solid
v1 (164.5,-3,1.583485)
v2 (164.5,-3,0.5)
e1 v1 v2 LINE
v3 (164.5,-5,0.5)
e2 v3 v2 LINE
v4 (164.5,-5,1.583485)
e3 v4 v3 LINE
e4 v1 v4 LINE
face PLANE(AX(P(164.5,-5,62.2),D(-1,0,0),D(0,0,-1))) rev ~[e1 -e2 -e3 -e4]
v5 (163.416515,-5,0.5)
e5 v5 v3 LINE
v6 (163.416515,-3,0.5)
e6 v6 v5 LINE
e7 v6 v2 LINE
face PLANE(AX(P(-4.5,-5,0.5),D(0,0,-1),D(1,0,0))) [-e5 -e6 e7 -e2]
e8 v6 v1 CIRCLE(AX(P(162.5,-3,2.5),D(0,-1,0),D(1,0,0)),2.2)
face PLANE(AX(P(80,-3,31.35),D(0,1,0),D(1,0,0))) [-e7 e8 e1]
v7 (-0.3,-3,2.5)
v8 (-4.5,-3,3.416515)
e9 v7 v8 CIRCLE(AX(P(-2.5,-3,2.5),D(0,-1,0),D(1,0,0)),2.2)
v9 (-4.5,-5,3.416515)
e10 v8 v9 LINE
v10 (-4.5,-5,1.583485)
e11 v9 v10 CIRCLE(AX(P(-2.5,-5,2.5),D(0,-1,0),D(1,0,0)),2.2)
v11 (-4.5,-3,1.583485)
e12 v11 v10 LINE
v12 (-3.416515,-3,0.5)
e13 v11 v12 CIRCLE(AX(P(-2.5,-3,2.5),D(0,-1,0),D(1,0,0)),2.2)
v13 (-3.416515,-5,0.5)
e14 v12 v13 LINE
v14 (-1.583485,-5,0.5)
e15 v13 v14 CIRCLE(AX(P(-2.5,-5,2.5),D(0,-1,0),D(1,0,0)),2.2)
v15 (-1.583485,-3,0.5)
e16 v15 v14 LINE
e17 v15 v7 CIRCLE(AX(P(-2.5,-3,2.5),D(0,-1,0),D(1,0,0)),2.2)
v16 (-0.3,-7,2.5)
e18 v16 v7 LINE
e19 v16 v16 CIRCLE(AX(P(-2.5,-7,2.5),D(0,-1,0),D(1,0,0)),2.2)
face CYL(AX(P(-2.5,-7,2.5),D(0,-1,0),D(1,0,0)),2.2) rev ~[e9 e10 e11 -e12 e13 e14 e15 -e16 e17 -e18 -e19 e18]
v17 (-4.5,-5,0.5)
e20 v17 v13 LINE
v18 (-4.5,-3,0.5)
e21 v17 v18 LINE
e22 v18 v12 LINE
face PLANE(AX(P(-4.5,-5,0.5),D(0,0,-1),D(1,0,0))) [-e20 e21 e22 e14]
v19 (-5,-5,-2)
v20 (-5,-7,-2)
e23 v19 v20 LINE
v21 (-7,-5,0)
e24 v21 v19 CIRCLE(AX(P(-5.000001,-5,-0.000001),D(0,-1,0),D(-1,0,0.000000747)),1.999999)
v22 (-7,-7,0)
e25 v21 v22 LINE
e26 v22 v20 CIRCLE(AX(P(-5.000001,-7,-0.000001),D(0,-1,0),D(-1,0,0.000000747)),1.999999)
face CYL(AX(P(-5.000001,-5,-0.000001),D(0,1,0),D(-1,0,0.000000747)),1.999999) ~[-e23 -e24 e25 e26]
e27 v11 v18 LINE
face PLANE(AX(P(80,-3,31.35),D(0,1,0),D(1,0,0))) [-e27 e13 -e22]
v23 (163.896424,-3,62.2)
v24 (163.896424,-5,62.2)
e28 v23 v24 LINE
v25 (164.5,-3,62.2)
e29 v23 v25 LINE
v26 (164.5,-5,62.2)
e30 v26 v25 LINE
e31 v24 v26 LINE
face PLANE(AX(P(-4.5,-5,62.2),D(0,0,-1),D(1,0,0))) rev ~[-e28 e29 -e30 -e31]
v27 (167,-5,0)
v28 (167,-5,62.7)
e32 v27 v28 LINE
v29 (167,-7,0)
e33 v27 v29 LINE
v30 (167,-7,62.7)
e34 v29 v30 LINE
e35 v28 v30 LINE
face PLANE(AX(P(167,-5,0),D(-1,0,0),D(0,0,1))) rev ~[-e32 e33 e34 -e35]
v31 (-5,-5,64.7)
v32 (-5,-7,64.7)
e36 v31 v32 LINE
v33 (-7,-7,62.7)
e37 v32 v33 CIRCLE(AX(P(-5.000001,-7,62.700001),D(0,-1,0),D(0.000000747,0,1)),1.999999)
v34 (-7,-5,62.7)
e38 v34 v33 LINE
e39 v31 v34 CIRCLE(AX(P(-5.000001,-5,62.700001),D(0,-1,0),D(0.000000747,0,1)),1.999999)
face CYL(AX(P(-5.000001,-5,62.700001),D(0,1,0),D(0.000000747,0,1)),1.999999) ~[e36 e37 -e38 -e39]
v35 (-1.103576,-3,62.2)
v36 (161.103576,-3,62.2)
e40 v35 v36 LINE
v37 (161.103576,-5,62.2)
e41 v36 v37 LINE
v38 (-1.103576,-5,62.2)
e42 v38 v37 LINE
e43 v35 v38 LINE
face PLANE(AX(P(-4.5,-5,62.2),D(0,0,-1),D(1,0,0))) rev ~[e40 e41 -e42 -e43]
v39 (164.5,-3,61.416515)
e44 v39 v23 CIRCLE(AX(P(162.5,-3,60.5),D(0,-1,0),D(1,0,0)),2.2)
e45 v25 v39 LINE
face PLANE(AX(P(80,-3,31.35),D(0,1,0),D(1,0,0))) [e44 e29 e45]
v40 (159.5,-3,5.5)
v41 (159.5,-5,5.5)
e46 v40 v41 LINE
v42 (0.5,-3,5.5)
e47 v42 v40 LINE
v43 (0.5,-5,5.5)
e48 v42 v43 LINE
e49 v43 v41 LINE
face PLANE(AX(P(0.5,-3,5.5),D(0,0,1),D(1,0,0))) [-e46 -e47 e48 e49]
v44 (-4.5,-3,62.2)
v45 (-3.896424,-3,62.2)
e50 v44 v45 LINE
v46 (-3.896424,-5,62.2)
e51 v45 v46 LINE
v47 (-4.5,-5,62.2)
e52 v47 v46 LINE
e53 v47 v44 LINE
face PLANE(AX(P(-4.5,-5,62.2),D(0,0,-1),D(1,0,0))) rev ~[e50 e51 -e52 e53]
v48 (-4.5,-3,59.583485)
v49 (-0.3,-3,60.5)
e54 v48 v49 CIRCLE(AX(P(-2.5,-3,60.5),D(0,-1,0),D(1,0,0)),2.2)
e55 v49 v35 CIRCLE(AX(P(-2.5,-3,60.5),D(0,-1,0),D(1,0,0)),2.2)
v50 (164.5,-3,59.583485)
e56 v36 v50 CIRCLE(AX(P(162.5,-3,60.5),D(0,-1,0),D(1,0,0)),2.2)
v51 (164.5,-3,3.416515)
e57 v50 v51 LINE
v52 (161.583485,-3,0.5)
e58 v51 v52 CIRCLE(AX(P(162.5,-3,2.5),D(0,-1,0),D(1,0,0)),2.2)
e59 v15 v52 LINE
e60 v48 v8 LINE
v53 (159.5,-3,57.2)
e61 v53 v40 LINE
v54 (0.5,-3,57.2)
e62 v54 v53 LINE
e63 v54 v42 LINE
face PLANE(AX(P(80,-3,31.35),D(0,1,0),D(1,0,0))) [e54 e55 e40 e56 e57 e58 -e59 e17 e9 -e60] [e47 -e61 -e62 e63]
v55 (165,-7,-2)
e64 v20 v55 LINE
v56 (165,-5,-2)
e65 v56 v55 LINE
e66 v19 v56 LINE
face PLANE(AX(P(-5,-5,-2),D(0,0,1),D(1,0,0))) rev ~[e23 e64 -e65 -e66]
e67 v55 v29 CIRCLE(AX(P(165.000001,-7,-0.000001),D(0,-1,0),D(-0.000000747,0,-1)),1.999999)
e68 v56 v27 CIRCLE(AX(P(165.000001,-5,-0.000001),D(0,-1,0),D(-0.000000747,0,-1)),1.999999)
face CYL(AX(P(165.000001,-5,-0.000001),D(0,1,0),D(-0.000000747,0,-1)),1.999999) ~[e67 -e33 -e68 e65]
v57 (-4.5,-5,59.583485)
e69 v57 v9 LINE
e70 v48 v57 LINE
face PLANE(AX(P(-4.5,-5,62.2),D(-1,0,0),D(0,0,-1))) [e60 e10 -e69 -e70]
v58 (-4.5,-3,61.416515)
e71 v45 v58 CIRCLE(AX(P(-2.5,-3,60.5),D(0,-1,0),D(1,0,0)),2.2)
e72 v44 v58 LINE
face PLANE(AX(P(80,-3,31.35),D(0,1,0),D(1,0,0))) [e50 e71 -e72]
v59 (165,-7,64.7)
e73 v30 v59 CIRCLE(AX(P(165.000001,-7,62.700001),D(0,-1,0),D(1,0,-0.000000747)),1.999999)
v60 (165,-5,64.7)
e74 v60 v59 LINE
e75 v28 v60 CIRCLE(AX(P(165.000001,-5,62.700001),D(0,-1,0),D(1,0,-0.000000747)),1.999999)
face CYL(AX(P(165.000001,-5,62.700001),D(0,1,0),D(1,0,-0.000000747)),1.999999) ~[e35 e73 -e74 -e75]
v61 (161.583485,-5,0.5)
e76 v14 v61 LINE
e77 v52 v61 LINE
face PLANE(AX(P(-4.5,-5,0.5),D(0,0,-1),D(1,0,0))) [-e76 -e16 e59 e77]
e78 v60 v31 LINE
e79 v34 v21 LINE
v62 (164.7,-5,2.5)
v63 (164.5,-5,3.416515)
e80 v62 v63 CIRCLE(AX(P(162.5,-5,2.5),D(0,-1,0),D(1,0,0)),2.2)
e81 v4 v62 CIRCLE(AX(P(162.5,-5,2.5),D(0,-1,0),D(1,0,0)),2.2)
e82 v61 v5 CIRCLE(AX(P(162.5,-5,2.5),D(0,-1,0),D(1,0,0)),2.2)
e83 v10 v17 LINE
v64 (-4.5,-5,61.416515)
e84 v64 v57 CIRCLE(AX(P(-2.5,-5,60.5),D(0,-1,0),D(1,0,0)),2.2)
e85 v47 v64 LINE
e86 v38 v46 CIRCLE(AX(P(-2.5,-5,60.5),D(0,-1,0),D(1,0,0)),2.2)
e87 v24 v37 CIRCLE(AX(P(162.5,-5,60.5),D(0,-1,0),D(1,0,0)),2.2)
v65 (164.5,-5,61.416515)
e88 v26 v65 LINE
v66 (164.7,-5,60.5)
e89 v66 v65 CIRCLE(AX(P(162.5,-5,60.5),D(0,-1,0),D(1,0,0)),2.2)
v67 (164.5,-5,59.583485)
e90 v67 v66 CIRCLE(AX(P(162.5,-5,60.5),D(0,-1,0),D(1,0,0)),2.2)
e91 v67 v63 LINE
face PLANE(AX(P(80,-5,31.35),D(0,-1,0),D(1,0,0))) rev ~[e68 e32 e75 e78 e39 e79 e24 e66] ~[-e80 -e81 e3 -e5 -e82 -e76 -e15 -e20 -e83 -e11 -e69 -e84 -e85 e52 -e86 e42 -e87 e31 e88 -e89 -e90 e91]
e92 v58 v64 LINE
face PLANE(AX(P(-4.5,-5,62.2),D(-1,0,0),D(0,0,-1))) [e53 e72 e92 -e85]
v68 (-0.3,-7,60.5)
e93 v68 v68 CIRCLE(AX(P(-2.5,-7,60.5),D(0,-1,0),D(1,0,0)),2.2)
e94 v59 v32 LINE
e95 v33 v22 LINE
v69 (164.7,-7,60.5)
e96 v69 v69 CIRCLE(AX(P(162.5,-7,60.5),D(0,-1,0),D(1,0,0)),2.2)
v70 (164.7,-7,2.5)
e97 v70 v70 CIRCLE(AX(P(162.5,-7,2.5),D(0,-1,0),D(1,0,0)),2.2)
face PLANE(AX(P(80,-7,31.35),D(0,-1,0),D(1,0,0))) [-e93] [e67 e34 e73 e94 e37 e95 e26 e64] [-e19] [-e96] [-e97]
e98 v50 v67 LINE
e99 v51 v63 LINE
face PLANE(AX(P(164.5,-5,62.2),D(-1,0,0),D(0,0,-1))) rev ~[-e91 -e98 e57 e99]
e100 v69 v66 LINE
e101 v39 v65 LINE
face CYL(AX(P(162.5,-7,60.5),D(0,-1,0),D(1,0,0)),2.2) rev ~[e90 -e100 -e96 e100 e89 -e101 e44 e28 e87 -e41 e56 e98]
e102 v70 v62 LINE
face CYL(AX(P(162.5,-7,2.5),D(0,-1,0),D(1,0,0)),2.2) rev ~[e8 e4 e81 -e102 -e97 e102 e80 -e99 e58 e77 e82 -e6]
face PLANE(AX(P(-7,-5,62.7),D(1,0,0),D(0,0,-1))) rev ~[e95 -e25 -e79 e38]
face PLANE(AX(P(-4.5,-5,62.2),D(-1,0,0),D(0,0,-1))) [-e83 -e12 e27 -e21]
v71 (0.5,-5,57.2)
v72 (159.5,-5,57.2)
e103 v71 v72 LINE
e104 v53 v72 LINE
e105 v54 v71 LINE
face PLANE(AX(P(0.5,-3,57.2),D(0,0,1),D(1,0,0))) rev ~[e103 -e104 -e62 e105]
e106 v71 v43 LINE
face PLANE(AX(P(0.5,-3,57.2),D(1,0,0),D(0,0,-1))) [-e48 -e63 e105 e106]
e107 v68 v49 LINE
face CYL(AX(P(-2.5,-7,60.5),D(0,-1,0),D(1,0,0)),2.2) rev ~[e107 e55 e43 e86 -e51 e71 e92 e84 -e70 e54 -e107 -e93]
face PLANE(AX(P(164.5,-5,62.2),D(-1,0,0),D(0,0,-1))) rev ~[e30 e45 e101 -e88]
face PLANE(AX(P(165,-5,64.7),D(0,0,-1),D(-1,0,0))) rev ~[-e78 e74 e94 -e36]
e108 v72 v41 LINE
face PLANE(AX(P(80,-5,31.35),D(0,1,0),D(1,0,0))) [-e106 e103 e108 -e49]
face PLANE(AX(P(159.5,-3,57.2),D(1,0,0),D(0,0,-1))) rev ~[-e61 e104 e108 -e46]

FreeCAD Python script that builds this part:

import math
import FreeCAD as App
import Part
import Sketcher
from FreeCAD import Vector

doc = App.newDocument("Part")
body = doc.addObject("PartDesign::Body", "Body")

# Sketch on XZ plane
sketch1 = body.newObject("Sketcher::SketchObject", "Sketch")
sketch1.AttachmentSupport = (doc.getObject("XZ_Plane"), [""])
sketch1.MapMode = "FlatFace"
sketch1.addGeometry([
    Part.LineSegment(Vector(-2, 62.7, 0), Vector(-2, 0, 0)),  # 0
    Part.ArcOfCircle(Part.Circle(Vector(0, 0, 0), Vector(0, 0, 1), 2), math.radians(180), math.radians(270)),  # 1
    Part.LineSegment(Vector(0, -2, 0), Vector(170, -2, 0)),  # 2
    Part.ArcOfCircle(Part.Circle(Vector(170, 0, 0), Vector(0, 0, 1), 2), math.radians(-90), math.radians(0)),  # 3
    Part.LineSegment(Vector(172, 0, 0), Vector(172, 62.7, 0)),  # 4
    Part.ArcOfCircle(Part.Circle(Vector(170, 62.7, 0), Vector(0, 0, 1), 2), math.radians(0), math.radians(90)),  # 5
    Part.LineSegment(Vector(170, 64.7, 0), Vector(0, 64.7, 0)),  # 6
    Part.ArcOfCircle(Part.Circle(Vector(0, 62.7, 0), Vector(0, 0, 1), 2), math.radians(90), math.radians(180)),  # 7
], False)
sketch1.addConstraint([
    Sketcher.Constraint("Tangent", 0, 2, 1, 1),
    Sketcher.Constraint("Tangent", 1, 2, 2, 1),
    Sketcher.Constraint("Tangent", 2, 2, 3, 1),
    Sketcher.Constraint("Tangent", 3, 2, 4, 1),
    Sketcher.Constraint("Tangent", 4, 2, 5, 1),
    Sketcher.Constraint("Tangent", 5, 2, 6, 1),
    Sketcher.Constraint("Tangent", 6, 2, 7, 1),
    Sketcher.Constraint("Tangent", 7, 2, 0, 1),
    Sketcher.Constraint("Vertical", 0),
    Sketcher.Constraint("Horizontal", 2),
    Sketcher.Constraint("Vertical", 4),
    Sketcher.Constraint("Horizontal", 6),
    Sketcher.Constraint("Coincident", 1, 3, -1, 1),
    Sketcher.Constraint("Equal", 1, 3),
    Sketcher.Constraint("Equal", 3, 5),
    Sketcher.Constraint("Equal", 5, 7),
    Sketcher.Constraint("Radius", 1, 1.999999),
    Sketcher.Constraint("DistanceX", 2, 1, 2, 2, 170.0),
    Sketcher.Constraint("DistanceY", 0, 2, 0, 1, 62.7),
])
pad1 = body.newObject("PartDesign::Pad", "Pad")
pad1.Profile = sketch1
pad1.Length = 2

# Sketch on XZ plane
sketch2 = body.newObject("Sketcher::SketchObject", "Sketch001")
sketch2.AttachmentSupport = (doc.getObject("XZ_Plane"), [""])
sketch2.MapMode = "FlatFace"
sketch2.addGeometry([
    Part.LineSegment(Vector(0, 0, 0), Vector(0, 62, 0)),
    Part.LineSegment(Vector(0, 62, 0), Vector(170, 62, 0)),
    Part.LineSegment(Vector(170, 62, 0), Vector(170, 0, 0)),
    Part.LineSegment(Vector(170, 0, 0), Vector(0, 0, 0)),
], False)
sketch2.addConstraint([
    Sketcher.Constraint("Coincident", 0, 2, 1, 1),
    Sketcher.Constraint("Coincident", 1, 2, 2, 1),
    Sketcher.Constraint("Coincident", 2, 2, 3, 1),
    Sketcher.Constraint("Coincident", 3, 2, 0, 1),
    Sketcher.Constraint("Vertical", 0),
    Sketcher.Constraint("Horizontal", 1),
    Sketcher.Constraint("Vertical", 2),
    Sketcher.Constraint("Horizontal", 3),
    Sketcher.Constraint("DistanceX", 1, 1, 1, 2, 169.0),
    Sketcher.Constraint("DistanceY", 0, 1, 0, 2, 61.7),
    Sketcher.Constraint("DistanceX", -1, 1, 0, 2, 0.5),
    Sketcher.Constraint("DistanceY", -1, 1, 0, 2, 62.2),
])
pad2 = body.newObject("PartDesign::Pad", "Pad001")
pad2.Profile = sketch2
pad2.Length = 2
pad2.Reversed = True

# Sketch on XZ plane
sketch3 = body.newObject("Sketcher::SketchObject", "Sketch002")
sketch3.AttachmentSupport = (doc.getObject("XZ_Plane"), [""])
sketch3.MapMode = "FlatFace"
sketch3.AttachmentOffset = App.Placement(Vector(0, 0, 2), App.Rotation())
sketch3.addGeometry([
    Part.Circle(Vector(2.5, 2.5, 0), Vector(0, 0, 1), 2.2),
    Part.Circle(Vector(2.5, 60.5, 0), Vector(0, 0, 1), 2.2),
    Part.Circle(Vector(167.5, 60.5, 0), Vector(0, 0, 1), 2.2),
    Part.Circle(Vector(167.5, 2.5, 0), Vector(0, 0, 1), 2.2),
], False)
sketch3.addConstraint([
    Sketcher.Constraint("Equal", 0, 1),
    Sketcher.Constraint("Equal", 1, 2),
    Sketcher.Constraint("Equal", 2, 3),
    Sketcher.Constraint("Horizontal", 1, 3, 2, 3),
    Sketcher.Constraint("Horizontal", 0, 3, 3, 3),
    Sketcher.Constraint("Vertical", 0, 3, 1, 3),
    Sketcher.Constraint("Vertical", 2, 3, 3, 3),
    Sketcher.Constraint("Diameter", 0, 4.4),
    Sketcher.Constraint("DistanceY", 0, 3, 1, 3, 58.0),
    Sketcher.Constraint("DistanceX", 1, 3, 2, 3, 165.0),
    Sketcher.Constraint("DistanceX", -1, 1, 0, 3, 2.5),
    Sketcher.Constraint("DistanceY", -1, 1, 0, 3, 2.5),
])
pocket1 = body.newObject("PartDesign::Pocket", "Pocket")
pocket1.Profile = sketch3
pocket1.Type = "ThroughAll"

# Sketch on XZ plane
sketch4 = body.newObject("Sketcher::SketchObject", "Sketch003")
sketch4.AttachmentSupport = (doc.getObject("XZ_Plane"), [""])
sketch4.MapMode = "FlatFace"
sketch4.AttachmentOffset = App.Placement(Vector(0, 0, -2), App.Rotation())
sketch4.addGeometry([
    Part.LineSegment(Vector(6, 6, 0), Vector(6, 57, 0)),
    Part.LineSegment(Vector(6, 57, 0), Vector(164, 57, 0)),
    Part.LineSegment(Vector(164, 57, 0), Vector(164, 6, 0)),
    Part.LineSegment(Vector(164, 6, 0), Vector(6, 6, 0)),
], False)
sketch4.addConstraint([
    Sketcher.Constraint("Coincident", 0, 2, 1, 1),
    Sketcher.Constraint("Coincident", 1, 2, 2, 1),
    Sketcher.Constraint("Coincident", 2, 2, 3, 1),
    Sketcher.Constraint("Coincident", 3, 2, 0, 1),
    Sketcher.Constraint("Vertical", 0),
    Sketcher.Constraint("Horizontal", 1),
    Sketcher.Constraint("Vertical", 2),
    Sketcher.Constraint("Horizontal", 3),
    Sketcher.Constraint("DistanceX", 1, 1, 1, 2, 159.0),
    Sketcher.Constraint("DistanceY", 0, 1, 0, 2, 51.7),
    Sketcher.Constraint("DistanceX", -1, 1, 0, 2, 5.5),
    Sketcher.Constraint("DistanceY", -1, 1, 0, 2, 57.2),
])
pocket2 = body.newObject("PartDesign::Pocket", "Pocket001")
pocket2.Profile = sketch4
pocket2.Length = 2
pocket2.Reversed = True
body2 = doc.addObject("PartDesign::Body", "Body001")
doc.recompute()

body.Placement = App.Placement(Vector(-5, -5, 0), App.Rotation(Vector(0, 0, 1), 0))
boolean = body2.newObject("PartDesign::Boolean", "Boolean")
boolean.Type = "Fuse"
boolean.addObjects([body])

doc.recompute()
